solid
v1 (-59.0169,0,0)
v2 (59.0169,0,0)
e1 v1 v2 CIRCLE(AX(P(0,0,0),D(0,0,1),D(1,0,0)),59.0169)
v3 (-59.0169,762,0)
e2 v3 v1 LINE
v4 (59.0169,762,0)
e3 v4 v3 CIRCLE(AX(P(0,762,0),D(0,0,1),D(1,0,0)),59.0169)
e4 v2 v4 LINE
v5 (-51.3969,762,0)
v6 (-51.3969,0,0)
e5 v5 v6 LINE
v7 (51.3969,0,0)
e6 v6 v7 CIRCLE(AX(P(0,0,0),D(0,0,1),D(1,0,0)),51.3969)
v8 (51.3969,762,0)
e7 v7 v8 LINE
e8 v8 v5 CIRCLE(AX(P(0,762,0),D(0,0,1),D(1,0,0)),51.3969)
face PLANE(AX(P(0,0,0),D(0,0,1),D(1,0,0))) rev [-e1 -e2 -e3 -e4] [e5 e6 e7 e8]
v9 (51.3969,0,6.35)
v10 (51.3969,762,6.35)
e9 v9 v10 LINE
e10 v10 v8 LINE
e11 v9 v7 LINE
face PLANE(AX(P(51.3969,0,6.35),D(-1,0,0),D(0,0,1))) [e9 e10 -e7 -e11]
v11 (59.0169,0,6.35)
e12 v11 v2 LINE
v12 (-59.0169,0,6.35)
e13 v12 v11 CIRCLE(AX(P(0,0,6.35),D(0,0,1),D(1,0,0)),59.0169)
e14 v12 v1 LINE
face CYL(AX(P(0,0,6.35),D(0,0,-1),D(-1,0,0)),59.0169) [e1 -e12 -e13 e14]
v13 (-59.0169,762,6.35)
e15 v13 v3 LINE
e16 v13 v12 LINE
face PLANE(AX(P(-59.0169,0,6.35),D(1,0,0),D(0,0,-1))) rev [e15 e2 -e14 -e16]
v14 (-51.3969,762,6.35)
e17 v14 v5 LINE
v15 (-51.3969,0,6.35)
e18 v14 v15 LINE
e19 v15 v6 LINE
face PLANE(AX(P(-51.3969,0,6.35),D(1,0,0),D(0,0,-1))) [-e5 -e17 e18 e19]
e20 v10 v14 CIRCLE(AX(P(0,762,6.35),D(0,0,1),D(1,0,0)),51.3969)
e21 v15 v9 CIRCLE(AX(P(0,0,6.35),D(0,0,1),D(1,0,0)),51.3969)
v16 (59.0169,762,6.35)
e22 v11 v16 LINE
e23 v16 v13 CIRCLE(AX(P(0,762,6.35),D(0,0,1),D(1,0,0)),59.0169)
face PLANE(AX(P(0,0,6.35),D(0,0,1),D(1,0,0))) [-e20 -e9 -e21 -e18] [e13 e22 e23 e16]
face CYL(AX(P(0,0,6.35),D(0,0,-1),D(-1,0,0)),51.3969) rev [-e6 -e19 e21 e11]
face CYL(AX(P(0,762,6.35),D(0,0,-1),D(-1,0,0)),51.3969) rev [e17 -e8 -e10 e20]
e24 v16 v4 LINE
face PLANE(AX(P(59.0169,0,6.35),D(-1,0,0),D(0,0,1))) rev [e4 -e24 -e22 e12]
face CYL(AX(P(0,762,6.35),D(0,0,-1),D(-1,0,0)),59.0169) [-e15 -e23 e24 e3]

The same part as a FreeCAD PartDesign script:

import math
import FreeCAD as App
import Part
import Sketcher
from FreeCAD import Vector
Q = App.Units.Quantity

doc = App.newDocument("Part")
params = doc.addObject("Spreadsheet::Sheet", "Params")
for row, (alias, value) in enumerate([
    ("sketch1_height", "30 in"),
    ("pad1_length", "0.25 in"),
], start=1):
    params.set(f"A{row}", alias)
    params.set(f"B{row}", "=" + value)
    params.setAlias(f"B{row}", alias)

body = doc.addObject("PartDesign::Body", "Body")

# Sketch on XY plane
sketch1 = body.newObject("Sketcher::SketchObject", "Sketch")
sketch1.AttachmentSupport = (doc.getObject("XY_Plane"), [""])
sketch1.MapMode = "FlatFace"
sketch1.addGeometry([
    Part.LineSegment(Vector(-59.0169, 762, 0), Vector(-59.0169, 0, 0)),  # 0
    Part.ArcOfCircle(Part.Circle(Vector(0, 0, 0), Vector(0, 0, 1), 59.0169), math.radians(180), math.radians(360)),  # 1
    Part.LineSegment(Vector(59.0169, 0, 0), Vector(59.0169, 762, 0)),  # 2
    Part.ArcOfCircle(Part.Circle(Vector(0, 762, 0), Vector(0, 0, 1), 59.0169), math.radians(0), math.radians(180)),  # 3
    Part.LineSegment(Vector(-51.3969, 0, 0), Vector(-51.3969, 762, 0)),  # 4
    Part.ArcOfCircle(Part.Circle(Vector(0, 762, 0), Vector(0, 0, 1), 51.3969), math.radians(0), math.radians(180)),  # 5
    Part.LineSegment(Vector(51.3969, 762, 0), Vector(51.3969, 0, 0)),  # 6
    Part.ArcOfCircle(Part.Circle(Vector(0, 0, 0), Vector(0, 0, 1), 51.3969), math.radians(180), math.radians(360)),  # 7
], False)
sketch1.addConstraint([
    Sketcher.Constraint("Tangent", 0, 2, 1, 1),
    Sketcher.Constraint("Tangent", 1, 2, 2, 1),
    Sketcher.Constraint("Tangent", 2, 2, 3, 1),
    Sketcher.Constraint("Tangent", 3, 2, 0, 1),
    Sketcher.Constraint("Tangent", 4, 2, 5, 2),
    Sketcher.Constraint("Tangent", 5, 1, 6, 1),
    Sketcher.Constraint("Tangent", 6, 2, 7, 2),
    Sketcher.Constraint("Tangent", 7, 1, 4, 1),
    Sketcher.Constraint("Vertical", 0),
    Sketcher.Constraint("Vertical", 2),
    Sketcher.Constraint("Vertical", 4),
    Sketcher.Constraint("Vertical", 6),
    Sketcher.Constraint("Coincident", 1, 3, -1, 1),
    Sketcher.Constraint("Coincident", 7, 3, -1, 1),
    Sketcher.Constraint("Horizontal", 5, 3, 2, 2),
    Sketcher.Constraint("DistanceY", 0, 2, 0, 1, Q("30 in")),
    Sketcher.Constraint("Radius", 1, Q("2.3235 in")),
    Sketcher.Constraint("Radius", 5, Q("2.0235 in")),
])
sketch1.setExpression("Constraints[15]", "Params.sketch1_height")
pad1 = body.newObject("PartDesign::Pad", "Pad")
pad1.Profile = sketch1
pad1.setExpression("Length", "Params.pad1_length")

doc.recompute()
